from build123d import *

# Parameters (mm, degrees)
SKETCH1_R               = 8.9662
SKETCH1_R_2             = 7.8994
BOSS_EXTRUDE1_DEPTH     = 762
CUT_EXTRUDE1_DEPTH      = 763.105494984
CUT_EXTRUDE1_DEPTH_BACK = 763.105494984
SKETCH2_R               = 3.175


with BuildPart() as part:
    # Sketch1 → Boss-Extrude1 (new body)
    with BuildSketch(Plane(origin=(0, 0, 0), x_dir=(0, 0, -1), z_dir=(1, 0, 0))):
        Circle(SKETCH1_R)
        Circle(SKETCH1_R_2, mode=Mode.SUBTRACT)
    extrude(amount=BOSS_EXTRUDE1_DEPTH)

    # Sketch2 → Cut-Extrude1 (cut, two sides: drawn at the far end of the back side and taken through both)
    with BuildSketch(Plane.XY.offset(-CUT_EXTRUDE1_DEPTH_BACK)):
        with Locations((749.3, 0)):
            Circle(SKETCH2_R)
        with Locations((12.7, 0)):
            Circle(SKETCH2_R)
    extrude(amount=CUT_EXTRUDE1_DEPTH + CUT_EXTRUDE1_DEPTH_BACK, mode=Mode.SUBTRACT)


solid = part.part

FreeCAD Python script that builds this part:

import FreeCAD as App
import Part
import Sketcher
from FreeCAD import Vector
Q = App.Units.Quantity

doc = App.newDocument("Part")
body = doc.addObject("PartDesign::Body", "Body")

sketch1 = body.newObject("Sketcher::SketchObject", "Sketch")
sketch1.AttachmentSupport = (doc.getObject("YZ_Plane"), [""])
sketch1.MapMode = "FlatFace"
sketch1.addGeometry([
    Part.Circle(Vector(0, 0, 0), Vector(0, 0, 1), 9),
    Part.Circle(Vector(0, 0, 0), Vector(0, 0, 1), 8),
], False)
sketch1.addConstraint([
    Sketcher.Constraint("Coincident", 0, 3, -1, 1),
    Sketcher.Constraint("Coincident", 1, 3, -1, 1),
    Sketcher.Constraint("Diameter", 0, Q("0.706 in")),
    Sketcher.Constraint("Diameter", 1, Q("0.622 in")),
])
pad1 = body.newObject("PartDesign::Pad", "Pad")
pad1.Profile = sketch1
pad1.Length = Q("30 in")

sketch2 = body.newObject("Sketcher::SketchObject", "Sketch001")
sketch2.AttachmentSupport = (doc.getObject("XY_Plane"), [""])
sketch2.MapMode = "FlatFace"
sketch2.addGeometry([
    Part.Circle(Vector(749.3, 0, 0), Vector(0, 0, 1), 3.2),
    Part.Circle(Vector(12.7, 0, 0), Vector(0, 0, 1), 3.2),
], False)
sketch2.addConstraint([
    Sketcher.Constraint("Equal", 0, 1),
    Sketcher.Constraint("PointOnObject", 0, 3, -1),
    Sketcher.Constraint("PointOnObject", 1, 3, -1),
    Sketcher.Constraint("Diameter", 0, Q("0.25 in")),
    Sketcher.Constraint("DistanceX", 1, 3, 0, 3, Q("29 in")),
    Sketcher.Constraint("DistanceX", -1, 1, 0, 3, Q("29.5 in")),
])
pocket1 = body.newObject("PartDesign::Pocket", "Pocket")
pocket1.Profile = sketch2
pocket1.Type = "ThroughAll"
pocket1.Midplane = True

doc.recompute()
